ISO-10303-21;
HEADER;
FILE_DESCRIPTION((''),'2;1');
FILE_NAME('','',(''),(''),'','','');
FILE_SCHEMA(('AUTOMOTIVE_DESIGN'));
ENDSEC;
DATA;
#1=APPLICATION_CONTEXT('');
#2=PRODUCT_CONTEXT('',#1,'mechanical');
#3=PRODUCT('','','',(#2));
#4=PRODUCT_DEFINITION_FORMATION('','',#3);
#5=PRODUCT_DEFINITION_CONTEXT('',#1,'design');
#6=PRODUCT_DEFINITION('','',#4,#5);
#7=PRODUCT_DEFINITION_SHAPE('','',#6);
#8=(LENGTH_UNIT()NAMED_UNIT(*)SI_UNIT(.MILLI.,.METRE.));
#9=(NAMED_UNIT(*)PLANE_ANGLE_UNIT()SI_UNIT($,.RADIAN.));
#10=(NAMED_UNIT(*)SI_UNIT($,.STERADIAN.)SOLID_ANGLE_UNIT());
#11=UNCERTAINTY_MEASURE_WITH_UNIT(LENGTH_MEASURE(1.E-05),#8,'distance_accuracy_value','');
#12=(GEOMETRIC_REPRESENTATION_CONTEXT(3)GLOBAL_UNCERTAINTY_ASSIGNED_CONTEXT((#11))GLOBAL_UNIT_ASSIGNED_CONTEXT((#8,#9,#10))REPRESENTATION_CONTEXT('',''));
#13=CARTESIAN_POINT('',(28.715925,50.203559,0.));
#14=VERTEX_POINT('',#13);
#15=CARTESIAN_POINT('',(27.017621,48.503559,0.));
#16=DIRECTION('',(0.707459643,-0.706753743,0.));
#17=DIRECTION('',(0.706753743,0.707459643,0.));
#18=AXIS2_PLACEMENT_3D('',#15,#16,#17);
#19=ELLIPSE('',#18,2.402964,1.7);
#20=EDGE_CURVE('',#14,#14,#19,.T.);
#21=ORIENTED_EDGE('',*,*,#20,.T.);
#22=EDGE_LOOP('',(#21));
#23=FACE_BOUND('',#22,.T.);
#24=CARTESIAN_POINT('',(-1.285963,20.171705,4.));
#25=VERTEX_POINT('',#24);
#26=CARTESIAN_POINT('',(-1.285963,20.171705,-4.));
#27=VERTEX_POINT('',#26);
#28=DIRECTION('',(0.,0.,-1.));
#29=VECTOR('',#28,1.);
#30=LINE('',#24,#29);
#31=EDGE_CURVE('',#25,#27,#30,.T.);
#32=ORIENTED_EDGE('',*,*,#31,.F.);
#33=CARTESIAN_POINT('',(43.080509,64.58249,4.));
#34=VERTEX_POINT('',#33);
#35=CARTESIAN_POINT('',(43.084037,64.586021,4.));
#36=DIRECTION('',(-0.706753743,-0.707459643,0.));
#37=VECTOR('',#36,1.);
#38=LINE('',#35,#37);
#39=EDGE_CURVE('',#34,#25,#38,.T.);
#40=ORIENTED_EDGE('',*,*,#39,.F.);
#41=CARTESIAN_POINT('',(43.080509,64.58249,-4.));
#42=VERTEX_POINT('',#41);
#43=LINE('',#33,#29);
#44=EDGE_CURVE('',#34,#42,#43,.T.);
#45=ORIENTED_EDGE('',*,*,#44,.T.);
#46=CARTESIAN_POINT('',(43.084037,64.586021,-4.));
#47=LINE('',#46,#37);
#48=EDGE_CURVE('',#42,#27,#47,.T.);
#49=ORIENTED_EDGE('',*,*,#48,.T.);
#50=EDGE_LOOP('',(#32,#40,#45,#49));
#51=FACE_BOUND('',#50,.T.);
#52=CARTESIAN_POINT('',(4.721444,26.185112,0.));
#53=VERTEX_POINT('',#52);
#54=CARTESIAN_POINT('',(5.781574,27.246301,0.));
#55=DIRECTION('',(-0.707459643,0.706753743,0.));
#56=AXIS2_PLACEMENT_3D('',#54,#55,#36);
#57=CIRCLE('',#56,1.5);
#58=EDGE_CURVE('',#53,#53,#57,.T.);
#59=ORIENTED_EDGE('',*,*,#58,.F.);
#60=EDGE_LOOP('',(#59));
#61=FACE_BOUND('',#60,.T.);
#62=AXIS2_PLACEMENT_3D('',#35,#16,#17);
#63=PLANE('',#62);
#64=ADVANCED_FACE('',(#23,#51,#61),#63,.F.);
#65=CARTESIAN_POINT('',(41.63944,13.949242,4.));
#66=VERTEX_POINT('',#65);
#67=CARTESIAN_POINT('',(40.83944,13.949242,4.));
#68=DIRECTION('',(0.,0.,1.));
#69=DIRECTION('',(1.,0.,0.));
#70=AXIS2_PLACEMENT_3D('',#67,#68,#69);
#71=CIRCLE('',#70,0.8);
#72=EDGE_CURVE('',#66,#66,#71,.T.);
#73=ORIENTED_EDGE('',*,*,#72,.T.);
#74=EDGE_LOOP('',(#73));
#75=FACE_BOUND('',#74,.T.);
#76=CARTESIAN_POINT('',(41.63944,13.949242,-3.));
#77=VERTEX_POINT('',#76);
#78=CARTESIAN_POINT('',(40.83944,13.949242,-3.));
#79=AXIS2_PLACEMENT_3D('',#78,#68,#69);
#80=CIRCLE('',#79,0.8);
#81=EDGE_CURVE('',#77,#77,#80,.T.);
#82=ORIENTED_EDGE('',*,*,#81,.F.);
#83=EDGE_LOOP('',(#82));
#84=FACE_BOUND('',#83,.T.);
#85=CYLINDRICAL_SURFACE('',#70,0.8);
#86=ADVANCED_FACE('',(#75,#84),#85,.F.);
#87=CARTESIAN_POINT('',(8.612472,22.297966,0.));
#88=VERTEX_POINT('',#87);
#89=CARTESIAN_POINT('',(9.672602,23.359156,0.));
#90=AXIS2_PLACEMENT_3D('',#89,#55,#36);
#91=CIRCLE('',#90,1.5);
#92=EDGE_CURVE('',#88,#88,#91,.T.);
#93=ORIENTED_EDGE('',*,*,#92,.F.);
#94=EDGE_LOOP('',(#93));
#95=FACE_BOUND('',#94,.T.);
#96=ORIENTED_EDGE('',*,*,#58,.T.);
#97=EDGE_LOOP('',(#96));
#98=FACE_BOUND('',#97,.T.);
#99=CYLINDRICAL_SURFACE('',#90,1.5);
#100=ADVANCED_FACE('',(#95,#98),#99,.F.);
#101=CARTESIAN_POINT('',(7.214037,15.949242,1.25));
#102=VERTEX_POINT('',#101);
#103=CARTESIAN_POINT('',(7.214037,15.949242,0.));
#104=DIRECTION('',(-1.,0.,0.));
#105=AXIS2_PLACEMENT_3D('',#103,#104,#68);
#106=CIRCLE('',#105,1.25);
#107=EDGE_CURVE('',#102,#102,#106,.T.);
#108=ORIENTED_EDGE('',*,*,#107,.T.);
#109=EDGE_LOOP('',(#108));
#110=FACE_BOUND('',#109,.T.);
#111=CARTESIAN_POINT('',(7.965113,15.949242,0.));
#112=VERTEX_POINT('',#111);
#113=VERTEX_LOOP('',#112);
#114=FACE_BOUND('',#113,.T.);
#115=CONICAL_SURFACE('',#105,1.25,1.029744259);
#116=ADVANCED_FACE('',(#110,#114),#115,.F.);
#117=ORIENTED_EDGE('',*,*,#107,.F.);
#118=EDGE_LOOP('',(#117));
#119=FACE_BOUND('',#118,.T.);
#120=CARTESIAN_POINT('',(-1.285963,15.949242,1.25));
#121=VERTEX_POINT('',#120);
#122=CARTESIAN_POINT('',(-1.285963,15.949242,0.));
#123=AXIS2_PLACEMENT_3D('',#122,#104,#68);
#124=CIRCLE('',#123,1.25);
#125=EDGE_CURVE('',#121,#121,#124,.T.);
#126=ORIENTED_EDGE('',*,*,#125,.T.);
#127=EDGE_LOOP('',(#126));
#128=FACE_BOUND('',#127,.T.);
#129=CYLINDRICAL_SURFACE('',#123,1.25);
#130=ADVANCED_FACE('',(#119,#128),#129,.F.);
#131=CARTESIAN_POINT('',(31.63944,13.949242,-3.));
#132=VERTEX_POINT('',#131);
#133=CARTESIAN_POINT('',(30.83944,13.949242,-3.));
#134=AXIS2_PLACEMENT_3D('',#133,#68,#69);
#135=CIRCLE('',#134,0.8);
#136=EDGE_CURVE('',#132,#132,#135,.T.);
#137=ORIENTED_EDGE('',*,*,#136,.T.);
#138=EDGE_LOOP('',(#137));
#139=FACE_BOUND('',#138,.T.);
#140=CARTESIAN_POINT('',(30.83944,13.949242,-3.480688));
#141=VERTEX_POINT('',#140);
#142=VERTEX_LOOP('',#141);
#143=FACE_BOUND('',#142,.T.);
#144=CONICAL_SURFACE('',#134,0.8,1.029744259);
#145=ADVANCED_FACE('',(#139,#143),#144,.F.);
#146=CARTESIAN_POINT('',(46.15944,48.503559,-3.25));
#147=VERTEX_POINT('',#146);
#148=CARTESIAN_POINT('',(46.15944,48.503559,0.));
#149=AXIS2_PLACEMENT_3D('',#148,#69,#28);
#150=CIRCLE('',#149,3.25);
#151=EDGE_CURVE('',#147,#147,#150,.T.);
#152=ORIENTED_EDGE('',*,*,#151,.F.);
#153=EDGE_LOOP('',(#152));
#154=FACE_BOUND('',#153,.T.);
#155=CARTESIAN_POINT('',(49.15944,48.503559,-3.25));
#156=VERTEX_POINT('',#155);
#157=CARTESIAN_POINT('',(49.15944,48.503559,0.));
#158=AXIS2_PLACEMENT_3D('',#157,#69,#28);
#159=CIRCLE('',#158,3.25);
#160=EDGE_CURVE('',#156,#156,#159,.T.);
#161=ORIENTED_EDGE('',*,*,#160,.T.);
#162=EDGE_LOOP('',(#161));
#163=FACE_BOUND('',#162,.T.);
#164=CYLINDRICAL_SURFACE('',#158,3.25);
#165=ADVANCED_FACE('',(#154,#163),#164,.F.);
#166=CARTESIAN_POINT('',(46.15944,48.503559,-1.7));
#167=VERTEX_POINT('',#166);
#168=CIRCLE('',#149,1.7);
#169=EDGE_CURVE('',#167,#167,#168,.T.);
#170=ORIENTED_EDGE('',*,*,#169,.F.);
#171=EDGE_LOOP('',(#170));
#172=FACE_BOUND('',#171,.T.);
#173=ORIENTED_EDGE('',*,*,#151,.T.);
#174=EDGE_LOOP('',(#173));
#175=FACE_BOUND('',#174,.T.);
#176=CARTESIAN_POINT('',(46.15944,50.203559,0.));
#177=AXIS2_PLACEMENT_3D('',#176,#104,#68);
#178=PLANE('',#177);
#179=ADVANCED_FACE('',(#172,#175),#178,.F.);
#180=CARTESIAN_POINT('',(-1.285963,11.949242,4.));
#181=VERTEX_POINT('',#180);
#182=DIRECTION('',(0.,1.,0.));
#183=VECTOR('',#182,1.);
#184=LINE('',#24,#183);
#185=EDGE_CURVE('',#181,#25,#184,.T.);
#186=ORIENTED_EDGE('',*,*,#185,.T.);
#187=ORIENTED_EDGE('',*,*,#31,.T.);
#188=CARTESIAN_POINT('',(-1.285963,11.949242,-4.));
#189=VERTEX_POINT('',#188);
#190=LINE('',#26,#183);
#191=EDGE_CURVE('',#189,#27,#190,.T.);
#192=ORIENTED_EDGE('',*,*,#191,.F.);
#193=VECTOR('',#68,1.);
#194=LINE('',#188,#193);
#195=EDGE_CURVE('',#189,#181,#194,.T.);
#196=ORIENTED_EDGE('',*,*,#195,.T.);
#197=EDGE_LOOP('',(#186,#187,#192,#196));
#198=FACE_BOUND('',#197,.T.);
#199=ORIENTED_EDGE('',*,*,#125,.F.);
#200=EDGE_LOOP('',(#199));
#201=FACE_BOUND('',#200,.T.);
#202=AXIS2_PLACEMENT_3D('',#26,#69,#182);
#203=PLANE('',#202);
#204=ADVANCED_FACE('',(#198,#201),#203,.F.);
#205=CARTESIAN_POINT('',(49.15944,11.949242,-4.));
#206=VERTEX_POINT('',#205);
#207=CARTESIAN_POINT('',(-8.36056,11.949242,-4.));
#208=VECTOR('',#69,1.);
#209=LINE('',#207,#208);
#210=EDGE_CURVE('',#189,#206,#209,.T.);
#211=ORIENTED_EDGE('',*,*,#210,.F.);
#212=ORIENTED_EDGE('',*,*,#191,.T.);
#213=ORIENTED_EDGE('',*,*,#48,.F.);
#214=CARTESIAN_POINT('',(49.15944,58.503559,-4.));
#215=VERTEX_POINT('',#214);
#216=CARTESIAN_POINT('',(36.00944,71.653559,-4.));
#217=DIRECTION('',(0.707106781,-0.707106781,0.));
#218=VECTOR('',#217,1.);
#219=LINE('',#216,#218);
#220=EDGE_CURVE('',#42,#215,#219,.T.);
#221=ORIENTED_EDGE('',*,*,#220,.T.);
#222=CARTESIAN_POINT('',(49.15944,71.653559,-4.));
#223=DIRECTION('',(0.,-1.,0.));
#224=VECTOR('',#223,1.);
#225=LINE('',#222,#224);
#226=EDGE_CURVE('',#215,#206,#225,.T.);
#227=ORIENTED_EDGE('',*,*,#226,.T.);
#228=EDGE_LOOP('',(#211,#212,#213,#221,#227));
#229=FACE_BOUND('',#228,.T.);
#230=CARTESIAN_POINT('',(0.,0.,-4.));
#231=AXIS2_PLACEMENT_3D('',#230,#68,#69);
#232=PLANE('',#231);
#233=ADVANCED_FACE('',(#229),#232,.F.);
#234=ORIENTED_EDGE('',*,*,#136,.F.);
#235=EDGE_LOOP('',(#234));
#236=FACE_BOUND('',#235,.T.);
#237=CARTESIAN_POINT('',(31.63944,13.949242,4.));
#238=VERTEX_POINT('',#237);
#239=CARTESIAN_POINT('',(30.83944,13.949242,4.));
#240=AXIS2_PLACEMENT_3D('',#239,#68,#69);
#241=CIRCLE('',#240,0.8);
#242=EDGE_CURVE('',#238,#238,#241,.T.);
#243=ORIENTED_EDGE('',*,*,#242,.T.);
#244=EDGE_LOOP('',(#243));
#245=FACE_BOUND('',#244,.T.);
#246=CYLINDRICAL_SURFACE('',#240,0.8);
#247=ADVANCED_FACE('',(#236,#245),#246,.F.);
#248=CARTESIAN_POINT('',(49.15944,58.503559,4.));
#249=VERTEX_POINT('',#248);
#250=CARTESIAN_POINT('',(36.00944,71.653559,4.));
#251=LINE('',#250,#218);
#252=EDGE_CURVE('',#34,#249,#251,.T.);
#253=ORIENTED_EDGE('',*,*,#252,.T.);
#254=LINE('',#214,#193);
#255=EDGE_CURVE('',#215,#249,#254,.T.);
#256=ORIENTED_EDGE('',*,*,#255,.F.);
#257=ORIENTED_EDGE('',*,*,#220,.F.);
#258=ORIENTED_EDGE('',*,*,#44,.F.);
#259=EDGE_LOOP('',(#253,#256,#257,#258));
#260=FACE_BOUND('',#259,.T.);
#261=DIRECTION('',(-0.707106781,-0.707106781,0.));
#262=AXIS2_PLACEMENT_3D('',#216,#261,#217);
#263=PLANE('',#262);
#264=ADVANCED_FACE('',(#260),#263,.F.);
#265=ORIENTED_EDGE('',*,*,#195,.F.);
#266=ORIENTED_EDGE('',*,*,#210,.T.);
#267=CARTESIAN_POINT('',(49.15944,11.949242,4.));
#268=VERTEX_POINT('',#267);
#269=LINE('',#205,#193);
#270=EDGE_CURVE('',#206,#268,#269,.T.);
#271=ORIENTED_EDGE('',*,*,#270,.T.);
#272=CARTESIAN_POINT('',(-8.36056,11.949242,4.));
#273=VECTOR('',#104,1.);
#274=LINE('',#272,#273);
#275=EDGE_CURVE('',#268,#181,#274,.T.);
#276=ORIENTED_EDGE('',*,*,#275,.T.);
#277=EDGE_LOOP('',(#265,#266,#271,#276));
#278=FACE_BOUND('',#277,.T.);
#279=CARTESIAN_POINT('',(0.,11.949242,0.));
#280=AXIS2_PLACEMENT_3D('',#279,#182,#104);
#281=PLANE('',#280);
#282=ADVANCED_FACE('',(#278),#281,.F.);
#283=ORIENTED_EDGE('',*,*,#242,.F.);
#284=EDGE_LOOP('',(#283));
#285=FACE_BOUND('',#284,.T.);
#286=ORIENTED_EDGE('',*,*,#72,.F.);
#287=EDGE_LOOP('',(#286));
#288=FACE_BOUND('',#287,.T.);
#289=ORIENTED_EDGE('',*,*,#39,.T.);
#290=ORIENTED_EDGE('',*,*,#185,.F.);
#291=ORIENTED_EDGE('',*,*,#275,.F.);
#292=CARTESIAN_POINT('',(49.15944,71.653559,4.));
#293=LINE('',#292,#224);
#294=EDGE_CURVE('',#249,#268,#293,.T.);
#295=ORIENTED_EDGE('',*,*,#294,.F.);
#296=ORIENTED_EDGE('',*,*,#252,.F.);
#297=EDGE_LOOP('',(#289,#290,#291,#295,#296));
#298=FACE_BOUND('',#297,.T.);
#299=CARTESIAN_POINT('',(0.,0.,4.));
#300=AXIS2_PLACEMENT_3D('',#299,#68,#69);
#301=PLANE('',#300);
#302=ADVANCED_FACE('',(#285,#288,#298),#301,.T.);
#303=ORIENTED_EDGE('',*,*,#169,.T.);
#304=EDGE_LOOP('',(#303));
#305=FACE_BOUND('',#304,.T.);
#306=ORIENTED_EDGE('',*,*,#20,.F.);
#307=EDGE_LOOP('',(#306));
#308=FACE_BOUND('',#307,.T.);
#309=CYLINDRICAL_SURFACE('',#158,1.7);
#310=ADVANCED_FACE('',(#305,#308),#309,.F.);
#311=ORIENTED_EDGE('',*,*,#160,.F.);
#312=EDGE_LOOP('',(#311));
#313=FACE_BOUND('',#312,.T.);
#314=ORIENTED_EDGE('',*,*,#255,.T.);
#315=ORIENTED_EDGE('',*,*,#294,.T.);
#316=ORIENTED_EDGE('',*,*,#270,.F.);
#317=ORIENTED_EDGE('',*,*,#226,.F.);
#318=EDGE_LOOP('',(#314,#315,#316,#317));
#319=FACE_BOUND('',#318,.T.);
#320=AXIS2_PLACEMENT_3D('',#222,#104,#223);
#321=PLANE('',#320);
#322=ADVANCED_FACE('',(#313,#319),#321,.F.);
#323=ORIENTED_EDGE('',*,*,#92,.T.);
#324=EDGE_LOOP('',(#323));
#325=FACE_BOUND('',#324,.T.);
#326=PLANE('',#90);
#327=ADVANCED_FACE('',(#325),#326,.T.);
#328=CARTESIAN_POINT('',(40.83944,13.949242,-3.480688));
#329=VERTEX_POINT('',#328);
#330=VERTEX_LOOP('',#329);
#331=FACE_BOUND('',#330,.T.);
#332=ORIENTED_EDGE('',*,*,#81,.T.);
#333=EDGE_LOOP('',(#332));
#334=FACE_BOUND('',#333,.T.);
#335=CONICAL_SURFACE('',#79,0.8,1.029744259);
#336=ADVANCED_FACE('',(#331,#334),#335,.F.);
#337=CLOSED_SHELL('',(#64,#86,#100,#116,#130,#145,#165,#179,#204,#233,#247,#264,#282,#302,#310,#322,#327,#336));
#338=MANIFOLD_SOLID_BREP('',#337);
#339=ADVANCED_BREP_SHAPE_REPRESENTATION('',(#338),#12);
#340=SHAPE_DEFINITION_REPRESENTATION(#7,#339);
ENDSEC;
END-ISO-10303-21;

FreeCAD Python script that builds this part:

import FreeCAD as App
import Part
import Sketcher
from FreeCAD import Vector


def add_polygon(sketch, points):
    """Adds a closed chain of lines whose ends are joined by coincident constraints."""
    first, n = sketch.GeometryCount, len(points)
    for a, b in zip(points, points[1:] + points[:1]):
        sketch.addGeometry(Part.LineSegment(App.Vector(*a, 0), App.Vector(*b, 0)), False)
    for i in range(n):
        sketch.addConstraint(Sketcher.Constraint("Coincident", first + i, 2, first + (i + 1) % n, 1))

doc = App.newDocument("Part")
body = doc.addObject("PartDesign::Body", "Body")

# Sketch on XY plane
sketch1 = doc.addObject("Sketcher::SketchObject", "Sketch")
body.addObject(sketch1)
sketch1.AttachmentSupport = (doc.XY_Plane, [""])
sketch1.MapMode = "FlatFace"
add_polygon(sketch1, [(-8.36056, 17.409242), (51.31944, 17.409242), (51.31944, 71.653559), (36.00944, 71.653559), (43.084037, 64.586021), (-1.285963, 20.171705), (-8.36056, 27.239242)])  # lines 0-6
sketch1.addConstraint([
    Sketcher.Constraint("Horizontal", 0),
    Sketcher.Constraint("Vertical", 1),
    Sketcher.Constraint("Horizontal", 2),
    Sketcher.Constraint("Vertical", 6),
    Sketcher.Constraint("Perpendicular", 3, 4),
    Sketcher.Constraint("Perpendicular", 4, 5),
    Sketcher.Constraint("Equal", 3, 5),
    Sketcher.Constraint("Distance", 3, 10.0),
    Sketcher.Constraint("DistanceX", 0, 1, 0, 2, 59.68),
    Sketcher.Constraint("DistanceX", 2, 2, 2, 1, 15.31),
    Sketcher.Constraint("DistanceY", 6, 2, 6, 1, 9.83),
    Sketcher.Constraint("Distance", 4, 62.78),
    Sketcher.Constraint("DistanceX", -1, 1, 0, 2, 51.31944),
    Sketcher.Constraint("DistanceY", -1, 1, 1, 2, 71.653559),
])
pad1 = doc.addObject("PartDesign::Pad", "Pad")
body.addObject(pad1)
pad1.Profile = sketch1
pad1.Length = 8
pad1.Midplane = True

# Sketch on XZ plane
sketch2 = doc.addObject("Sketcher::SketchObject", "Sketch001")
body.addObject(sketch2)
sketch2.AttachmentSupport = (doc.XZ_Plane, [""])
sketch2.MapMode = "FlatFace"
sketch2.AttachmentOffset = App.Placement(Vector(0, 0, -17.409242), App.Rotation())
add_polygon(sketch2, [(-8.36056, 4), (-8.36056, -4), (51.31944, -4), (51.31944, 4)])  # lines 0-3
sketch2.addConstraint([
    Sketcher.Constraint("Vertical", 0),
    Sketcher.Constraint("Horizontal", 1),
    Sketcher.Constraint("Vertical", 2),
    Sketcher.Constraint("Horizontal", 3),
    Sketcher.Constraint("DistanceY", 0, 2, 0, 1, 8.0),
    Sketcher.Constraint("DistanceY", 0, 2, -1, 1, 4.0),
    Sketcher.Constraint("DistanceX", 1, 1, 1, 2, 59.68),
    Sketcher.Constraint("DistanceX", 0, 2, -1, 1, 8.36056),
])
pad2 = doc.addObject("PartDesign::Pad", "Pad001")
body.addObject(pad2)
pad2.Profile = sketch2
pad2.Length = 5.46

# Sketch on XY plane
sketch3 = doc.addObject("Sketcher::SketchObject", "Sketch002")
body.addObject(sketch3)
sketch3.AttachmentSupport = (doc.XY_Plane, [""])
sketch3.MapMode = "FlatFace"
sketch3.AttachmentOffset = App.Placement(Vector(0, 0, 4), App.Rotation())
add_polygon(sketch3, [(49.15944, 71.653559), (49.15944, 11.949242), (51.31944, 11.949242), (51.31944, 71.653559)])  # lines 0-3
sketch3.addConstraint([
    Sketcher.Constraint("Vertical", 0),
    Sketcher.Constraint("Horizontal", 1),
    Sketcher.Constraint("Vertical", 2),
    Sketcher.Constraint("Horizontal", 3),
    Sketcher.Constraint("DistanceX", 1, 1, 1, 2, 2.16),
    Sketcher.Constraint("DistanceY", 0, 2, 0, 1, 59.704316),
    Sketcher.Constraint("DistanceX", -1, 1, 0, 2, 49.15944),
    Sketcher.Constraint("DistanceY", -1, 1, 2, 2, 71.653559),
])
pocket1 = doc.addObject("PartDesign::Pocket", "Pocket")
body.addObject(pocket1)
pocket1.Profile = sketch3
pocket1.Type = "ThroughAll"

# Sketch on XY plane
sketch4 = doc.addObject("Sketcher::SketchObject", "Sketch003")
body.addObject(sketch4)
sketch4.AttachmentSupport = (doc.XY_Plane, [""])
sketch4.MapMode = "FlatFace"
sketch4.AttachmentOffset = App.Placement(Vector(0, 0, 4), App.Rotation())
add_polygon(sketch4, [(36.00944, 71.653559), (49.15944, 58.503559), (49.15944, 71.653559)])  # lines 0-2
sketch4.addConstraint([
    Sketcher.Constraint("Vertical", 1),
    Sketcher.Constraint("Horizontal", 2),
    Sketcher.Constraint("Equal", 2, 1),
    Sketcher.Constraint("DistanceX", 2, 2, 2, 1, 13.15),
    Sketcher.Constraint("DistanceX", -1, 1, 0, 2, 49.15944),
    Sketcher.Constraint("DistanceY", -1, 1, 0, 2, 58.503559),
])
pocket2 = doc.addObject("PartDesign::Pocket", "Pocket001")
body.addObject(pocket2)
pocket2.Profile = sketch4
pocket2.Type = "ThroughAll"

# Sketch on YZ plane
sketch5 = doc.addObject("Sketcher::SketchObject", "Sketch004")
body.addObject(sketch5)
sketch5.AttachmentSupport = (doc.YZ_Plane, [""])
sketch5.MapMode = "FlatFace"
sketch5.AttachmentOffset = App.Placement(Vector(0, 0, 49.15944), App.Rotation())
sketch5.addGeometry(Part.Circle(Vector(48.503559, 0, 0), Vector(0, 0, 1), 1.7), False)
sketch5.addConstraint([
    Sketcher.Constraint("PointOnObject", 0, 3, -1),
    Sketcher.Constraint("Diameter", 0, 3.4),
    Sketcher.Constraint("DistanceX", -1, 1, 0, 3, 48.503559),
])
doc.recompute()
hole = doc.addObject("PartDesign::Hole", "Hole")
body.addObject(hole)
hole.Profile = sketch5
hole.ThreadType = "None"
hole.Diameter = 3.4
hole.DepthType = "ThroughAll"
hole.HoleCutType = "Counterbore"
hole.HoleCutDiameter = 6.5
hole.HoleCutDepth = 3

# Sketch on XY plane
sketch6 = doc.addObject("Sketcher::SketchObject", "Sketch005")
body.addObject(sketch6)
sketch6.AttachmentSupport = (doc.XY_Plane, [""])
sketch6.MapMode = "FlatFace"
sketch6.AttachmentOffset = App.Placement(Vector(0, 0, 4), App.Rotation())
sketch6.addGeometry([
    Part.Circle(Vector(30.83944, 13.949242, 0), Vector(0, 0, 1), 0.8),
    Part.Circle(Vector(40.83944, 13.949242, 0), Vector(0, 0, 1), 0.8),
], False)
sketch6.addConstraint([
    Sketcher.Constraint("Equal", 0, 1),
    Sketcher.Constraint("Horizontal", 0, 3, 1, 3),
    Sketcher.Constraint("Diameter", 0, 1.6),
    Sketcher.Constraint("DistanceX", 0, 3, 1, 3, 10.0),
    Sketcher.Constraint("DistanceX", -1, 1, 0, 3, 30.83944),
    Sketcher.Constraint("DistanceY", -1, 1, 0, 3, 13.949242),
])
doc.recompute()
hole2 = doc.addObject("PartDesign::Hole", "Hole001")
body.addObject(hole2)
hole2.Profile = sketch6
hole2.ThreadType = "None"
hole2.Diameter = 1.6
hole2.DepthType = "Dimension"
hole2.Depth = 7
hole2.DrillPoint = "Angled"
hole2.DrillPointAngle = 118

# Sketch on XY plane
sketch7 = doc.addObject("Sketcher::SketchObject", "Sketch006")
body.addObject(sketch7)
sketch7.AttachmentSupport = (doc.XY_Plane, [""])
sketch7.MapMode = "FlatFace"
sketch7.AttachmentOffset = App.Placement(Vector(0, 0, 4), App.Rotation())
add_polygon(sketch7, [(-1.285963, 11.949242), (-1.285963, 20.171705), (-8.36056, 27.239242), (-8.36056, 11.949242)])  # lines 0-3
sketch7.addConstraint([
    Sketcher.Constraint("Vertical", 0),
    Sketcher.Constraint("Vertical", 2),
    Sketcher.Constraint("Horizontal", 3),
    Sketcher.Constraint("Distance", 1, 10.0),
    Sketcher.Constraint("DistanceY", 2, 2, 2, 1, 15.29),
    Sketcher.Constraint("DistanceX", 3, 1, 3, 2, 7.074596),
    Sketcher.Constraint("DistanceX", 1, 2, -1, 1, 8.36056),
    Sketcher.Constraint("DistanceY", -1, 1, 0, 2, 20.171705),
])
pocket3 = doc.addObject("PartDesign::Pocket", "Pocket002")
body.addObject(pocket3)
pocket3.Profile = sketch7
pocket3.Type = "ThroughAll"

# Sketch on an angled plane
sketch8 = doc.addObject("Sketcher::SketchObject", "Sketch007")
body.addObject(sketch8)
sketch8.Placement = App.Placement(Vector(-10.729471, 10.718765, 0), App.Rotation(Vector(0, 0, 1), Vector(0.706753743, 0.707459643, 0), Vector(-0.707459643, 0.706753743, 0), "ZXY"))
sketch8.addGeometry(Part.Circle(Vector(0, 23.361808, 0), Vector(0, 0, 1), 1.5), False)
sketch8.addConstraint([
    Sketcher.Constraint("PointOnObject", 0, 3, -2),
    Sketcher.Constraint("Diameter", 0, 3.0),
    Sketcher.Constraint("DistanceY", -1, 1, 0, 3, 23.361808),
])
pocket4 = doc.addObject("PartDesign::Pocket", "Pocket003")
body.addObject(pocket4)
pocket4.Profile = sketch8
pocket4.Length = 5.5

# Sketch on YZ plane
sketch9 = doc.addObject("Sketcher::SketchObject", "Sketch008")
body.addObject(sketch9)
sketch9.AttachmentSupport = (doc.YZ_Plane, [""])
sketch9.MapMode = "FlatFace"
sketch9.AttachmentOffset = App.Placement(Vector(0, 0, -1.285963), App.Rotation())
sketch9.addGeometry(Part.Circle(Vector(15.949242, 0, 0), Vector(0, 0, 1), 1.25), False)
sketch9.addConstraint([
    Sketcher.Constraint("PointOnObject", 0, 3, -1),
    Sketcher.Constraint("Diameter", 0, 2.5),
    Sketcher.Constraint("DistanceX", -1, 1, 0, 3, 15.949242),
])
doc.recompute()
hole3 = doc.addObject("PartDesign::Hole", "Hole002")
body.addObject(hole3)
hole3.Profile = sketch9
hole3.ThreadType = "None"
hole3.Diameter = 2.5
hole3.DepthType = "Dimension"
hole3.Depth = 8.5
hole3.DrillPoint = "Angled"
hole3.DrillPointAngle = 118
hole3.Reversed = True

doc.recompute()
